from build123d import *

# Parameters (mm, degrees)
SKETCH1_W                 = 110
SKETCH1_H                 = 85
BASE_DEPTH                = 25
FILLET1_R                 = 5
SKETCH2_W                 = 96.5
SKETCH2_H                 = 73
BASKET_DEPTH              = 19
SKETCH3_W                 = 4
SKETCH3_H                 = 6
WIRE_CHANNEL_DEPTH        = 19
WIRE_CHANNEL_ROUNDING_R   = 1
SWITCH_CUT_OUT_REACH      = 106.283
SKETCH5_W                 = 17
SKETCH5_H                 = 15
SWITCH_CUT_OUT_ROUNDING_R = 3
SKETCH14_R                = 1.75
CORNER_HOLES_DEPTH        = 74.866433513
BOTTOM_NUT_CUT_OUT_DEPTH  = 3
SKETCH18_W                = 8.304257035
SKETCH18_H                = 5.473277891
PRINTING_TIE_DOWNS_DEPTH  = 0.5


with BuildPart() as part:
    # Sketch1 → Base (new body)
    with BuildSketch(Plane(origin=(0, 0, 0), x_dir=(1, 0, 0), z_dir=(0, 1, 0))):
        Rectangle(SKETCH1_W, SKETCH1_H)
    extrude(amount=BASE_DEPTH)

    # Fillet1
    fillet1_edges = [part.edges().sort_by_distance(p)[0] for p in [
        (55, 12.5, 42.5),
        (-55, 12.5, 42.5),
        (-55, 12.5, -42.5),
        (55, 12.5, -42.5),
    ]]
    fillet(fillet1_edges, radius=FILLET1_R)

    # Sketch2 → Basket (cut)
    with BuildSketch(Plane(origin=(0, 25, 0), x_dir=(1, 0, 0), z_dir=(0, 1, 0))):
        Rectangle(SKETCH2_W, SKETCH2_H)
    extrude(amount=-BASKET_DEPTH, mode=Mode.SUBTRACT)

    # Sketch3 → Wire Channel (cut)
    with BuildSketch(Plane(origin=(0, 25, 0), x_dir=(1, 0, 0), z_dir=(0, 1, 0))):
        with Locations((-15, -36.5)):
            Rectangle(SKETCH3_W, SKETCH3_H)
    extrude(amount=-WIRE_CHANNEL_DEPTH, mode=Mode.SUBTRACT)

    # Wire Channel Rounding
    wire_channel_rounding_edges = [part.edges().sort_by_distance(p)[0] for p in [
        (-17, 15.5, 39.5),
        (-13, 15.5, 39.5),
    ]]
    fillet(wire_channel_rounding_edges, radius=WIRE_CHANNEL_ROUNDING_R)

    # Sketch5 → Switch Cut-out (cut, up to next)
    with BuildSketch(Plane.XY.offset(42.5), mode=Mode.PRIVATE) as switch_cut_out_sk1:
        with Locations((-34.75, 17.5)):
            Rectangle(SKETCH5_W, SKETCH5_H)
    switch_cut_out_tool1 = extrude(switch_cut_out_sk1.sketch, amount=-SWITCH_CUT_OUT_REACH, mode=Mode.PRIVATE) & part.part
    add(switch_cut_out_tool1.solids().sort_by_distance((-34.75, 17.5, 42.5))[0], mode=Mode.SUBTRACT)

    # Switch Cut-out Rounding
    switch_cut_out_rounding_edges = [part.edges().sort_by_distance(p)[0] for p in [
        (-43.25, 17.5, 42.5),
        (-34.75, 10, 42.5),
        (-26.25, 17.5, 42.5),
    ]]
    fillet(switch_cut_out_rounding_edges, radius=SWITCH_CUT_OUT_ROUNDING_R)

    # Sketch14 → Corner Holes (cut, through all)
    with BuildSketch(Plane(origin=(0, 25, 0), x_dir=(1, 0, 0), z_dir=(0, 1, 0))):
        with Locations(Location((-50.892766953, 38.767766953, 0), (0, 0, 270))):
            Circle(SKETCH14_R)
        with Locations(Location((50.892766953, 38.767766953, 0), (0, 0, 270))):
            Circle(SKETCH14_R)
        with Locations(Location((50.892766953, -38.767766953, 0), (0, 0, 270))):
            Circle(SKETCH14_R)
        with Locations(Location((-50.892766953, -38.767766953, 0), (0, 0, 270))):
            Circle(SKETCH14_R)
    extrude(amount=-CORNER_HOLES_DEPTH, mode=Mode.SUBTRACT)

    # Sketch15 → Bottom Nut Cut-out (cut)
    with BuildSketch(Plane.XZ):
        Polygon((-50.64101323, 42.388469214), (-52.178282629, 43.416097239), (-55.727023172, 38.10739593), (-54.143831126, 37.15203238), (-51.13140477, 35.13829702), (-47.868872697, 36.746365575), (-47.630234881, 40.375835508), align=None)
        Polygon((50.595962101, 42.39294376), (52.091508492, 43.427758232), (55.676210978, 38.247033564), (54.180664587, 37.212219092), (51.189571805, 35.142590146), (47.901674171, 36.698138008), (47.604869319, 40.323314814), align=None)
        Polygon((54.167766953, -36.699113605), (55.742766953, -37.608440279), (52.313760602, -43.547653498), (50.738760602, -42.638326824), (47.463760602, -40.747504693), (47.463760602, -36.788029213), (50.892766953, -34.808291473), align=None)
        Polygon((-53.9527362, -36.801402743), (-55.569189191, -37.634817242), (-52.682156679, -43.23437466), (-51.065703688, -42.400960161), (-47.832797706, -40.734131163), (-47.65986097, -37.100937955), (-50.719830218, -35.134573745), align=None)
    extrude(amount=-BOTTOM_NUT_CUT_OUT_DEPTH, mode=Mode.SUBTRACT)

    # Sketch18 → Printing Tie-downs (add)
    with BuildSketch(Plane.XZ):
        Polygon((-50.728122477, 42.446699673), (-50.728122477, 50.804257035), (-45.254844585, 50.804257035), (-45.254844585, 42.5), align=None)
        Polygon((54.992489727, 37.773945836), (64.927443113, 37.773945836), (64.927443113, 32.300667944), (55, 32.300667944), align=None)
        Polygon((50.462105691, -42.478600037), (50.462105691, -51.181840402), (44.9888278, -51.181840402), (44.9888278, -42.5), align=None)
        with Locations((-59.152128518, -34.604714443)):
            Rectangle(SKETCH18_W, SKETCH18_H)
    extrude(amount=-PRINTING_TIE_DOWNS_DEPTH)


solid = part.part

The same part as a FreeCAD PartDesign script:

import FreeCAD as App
import Part
import Sketcher
Q = App.Units.Quantity


def edges_at(feature, points):
    """Names of the edges that pass closest to the given points."""
    edges = feature.Shape.Edges
    near = lambda p: min(range(len(edges)), key=lambda i: edges[i].distToShape(Part.Vertex(*p))[0])
    return sorted({f"Edge{near(p) + 1}" for p in points})


def add_polygon(sketch, points):
    """Adds a closed chain of lines whose ends are joined by coincident constraints."""
    first, n = sketch.GeometryCount, len(points)
    for a, b in zip(points, points[1:] + points[:1]):
        sketch.addGeometry(Part.LineSegment(App.Vector(*a, 0), App.Vector(*b, 0)), False)
    for i in range(n):
        sketch.addConstraint(Sketcher.Constraint("Coincident", first + i, 2, first + (i + 1) % n, 1))

doc = App.newDocument("Part")
body = doc.addObject("PartDesign::Body", "Body")

sketch1 = body.newObject("Sketcher::SketchObject", "Sketch")
sketch1.AttachmentSupport = (doc.getObject("XZ_Plane"), [""])
sketch1.MapMode = "FlatFace"
add_polygon(sketch1, [(-55, -42), (-55, 42), (55, 42), (55, -42)])
sketch1.addConstraint([
    Sketcher.Constraint("Vertical", 0),
    Sketcher.Constraint("Horizontal", 1),
    Sketcher.Constraint("Vertical", 2),
    Sketcher.Constraint("Horizontal", 3),
    Sketcher.Constraint("Symmetric", 0, 2, 2, 2, -1, 1),
    Sketcher.Constraint("DistanceX", 1, 1, 1, 2, Q("110 mm")),
    Sketcher.Constraint("DistanceY", 0, 1, 0, 2, Q("85 mm")),
])
pad1 = body.newObject("PartDesign::Pad", "Pad")
pad1.Profile = sketch1
pad1.Length = 25
pad1.Reversed = True
doc.recompute()

fillet = body.newObject("PartDesign::Fillet", "Fillet")
fillet.Base = (pad1, edges_at(pad1, [
    (55, 12.5, 42.5),
    (-55, 12.5, 42.5),
    (-55, 12.5, -42.5),
    (55, 12.5, -42.5),
]))
fillet.Radius = 5

sketch2 = body.newObject("Sketcher::SketchObject", "Sketch001")
sketch2.AttachmentSupport = (doc.getObject("XZ_Plane"), [""])
sketch2.MapMode = "FlatFace"
sketch2.AttachmentOffset = App.Placement(App.Vector(0, 0, -25), App.Rotation())
add_polygon(sketch2, [(-48, -36), (-48, 36), (48, 36), (48, -36)])
sketch2.addConstraint([
    Sketcher.Constraint("Vertical", 0),
    Sketcher.Constraint("Horizontal", 1),
    Sketcher.Constraint("Vertical", 2),
    Sketcher.Constraint("Horizontal", 3),
    Sketcher.Constraint("Symmetric", 0, 2, 2, 2, -1, 1),
    Sketcher.Constraint("DistanceY", 0, 1, 0, 2, Q("73 mm")),
    Sketcher.Constraint("DistanceX", 1, 1, 1, 2, Q("96.5 mm")),
])
pocket1 = body.newObject("PartDesign::Pocket", "Pocket")
pocket1.Profile = sketch2
pocket1.Length = 19
pocket1.Reversed = True

sketch3 = body.newObject("Sketcher::SketchObject", "Sketch002")
sketch3.AttachmentSupport = (doc.getObject("XZ_Plane"), [""])
sketch3.MapMode = "FlatFace"
sketch3.AttachmentOffset = App.Placement(App.Vector(0, 0, -25), App.Rotation())
add_polygon(sketch3, [(-17, 33.5), (-17, 39.5), (-13, 39.5), (-13, 33.5)])
sketch3.addConstraint([
    Sketcher.Constraint("Vertical", 0),
    Sketcher.Constraint("Horizontal", 1),
    Sketcher.Constraint("Vertical", 2),
    Sketcher.Constraint("Horizontal", 3),
    Sketcher.Constraint("DistanceX", 1, 1, 1, 2, Q("4 mm")),
    Sketcher.Constraint("DistanceY", 0, 1, 0, 2, Q("6 mm")),
    Sketcher.Constraint("DistanceX", 0, 2, -1, 1, Q("17 mm")),
    Sketcher.Constraint("DistanceY", -1, 1, 0, 2, Q("39.5 mm")),
])
pocket2 = body.newObject("PartDesign::Pocket", "Pocket001")
pocket2.Profile = sketch3
pocket2.Length = 19
pocket2.Reversed = True
doc.recompute()

fillet2 = body.newObject("PartDesign::Fillet", "Fillet001")
fillet2.Base = (pocket2, edges_at(pocket2, [(-17, 15.5, 39.5), (-13, 15.5, 39.5)]))
fillet2.Radius = 1

sketch4 = body.newObject("Sketcher::SketchObject", "Sketch003")
sketch4.AttachmentSupport = (doc.getObject("XY_Plane"), [""])
sketch4.MapMode = "FlatFace"
sketch4.AttachmentOffset = App.Placement(App.Vector(0, 0, 42.5), App.Rotation())
add_polygon(sketch4, [(-43, 25), (-43, 10), (-26, 10), (-26, 25)])
sketch4.addConstraint([
    Sketcher.Constraint("Vertical", 0),
    Sketcher.Constraint("Horizontal", 1),
    Sketcher.Constraint("Vertical", 2),
    Sketcher.Constraint("Horizontal", 3),
    Sketcher.Constraint("DistanceX", 1, 1, 1, 2, Q("17 mm")),
    Sketcher.Constraint("DistanceY", 0, 2, 0, 1, Q("15 mm")),
    Sketcher.Constraint("DistanceY", -1, 1, 0, 2, Q("10 mm")),
    Sketcher.Constraint("DistanceX", 0, 2, -1, 1, Q("43.25 mm")),
])
pocket3 = body.newObject("PartDesign::Pocket", "Pocket002")
pocket3.Profile = sketch4
pocket3.Type = "UpToFirst"
doc.recompute()

fillet3 = body.newObject("PartDesign::Fillet", "Fillet002")
fillet3.Base = (pocket3, edges_at(pocket3, [(-43.25, 17.5, 42.5), (-34.75, 10, 42.5), (-26.25, 17.5, 42.5)]))
fillet3.Radius = 3

sketch5 = body.newObject("Sketcher::SketchObject", "Sketch004")
sketch5.AttachmentSupport = (doc.getObject("XZ_Plane"), [""])
sketch5.MapMode = "FlatFace"
sketch5.AttachmentOffset = App.Placement(App.Vector(0, 0, -25), App.Rotation())
sketch5.addGeometry([
    Part.Circle(App.Vector(-50.9, -38.8, 0), App.Vector(0, 0, 1), 1.8),
    Part.Circle(App.Vector(50.9, -38.8, 0), App.Vector(0, 0, 1), 1.8),
    Part.Circle(App.Vector(50.9, 38.8, 0), App.Vector(0, 0, 1), 1.8),
    Part.Circle(App.Vector(-50.9, 38.8, 0), App.Vector(0, 0, 1), 1.8),
], False)
sketch5.addConstraint([
    Sketcher.Constraint("Equal", 0, 1),
    Sketcher.Constraint("Equal", 1, 2),
    Sketcher.Constraint("Equal", 2, 3),
    Sketcher.Constraint("Symmetric", 0, 3, 2, 3, -1, 1),
    Sketcher.Constraint("Symmetric", 1, 3, 3, 3, -1, 1),
    Sketcher.Constraint("Symmetric", 0, 3, 1, 3, -2),
    Sketcher.Constraint("Diameter", 0, Q("3.5 mm")),
    Sketcher.Constraint("DistanceX", 0, 3, -1, 1, Q("50.892767 mm")),
    Sketcher.Constraint("DistanceY", 0, 3, -1, 1, Q("38.767767 mm")),
])
pocket4 = body.newObject("PartDesign::Pocket", "Pocket003")
pocket4.Profile = sketch5
pocket4.Type = "ThroughAll"
pocket4.Reversed = True

sketch6 = body.newObject("Sketcher::SketchObject", "Sketch005")
sketch6.AttachmentSupport = (doc.getObject("XZ_Plane"), [""])
sketch6.MapMode = "FlatFace"
add_polygon(sketch6, [(-50.6, 42.4), (-52.2, 43.4), (-55.7, 38.1), (-54.1, 37.2), (-51.1, 35.1), (-47.9, 36.7), (-47.6, 40.4)])
add_polygon(sketch6, [(52.1, 43.4), (50.6, 42.4), (47.6, 40.3), (47.9, 36.7), (51.2, 35.1), (54.2, 37.2), (55.7, 38.2)])
add_polygon(sketch6, [(55.7, -37.6), (54.2, -36.7), (50.9, -34.8), (47.5, -36.8), (47.5, -40.7), (50.7, -42.6), (52.3, -43.5)])
add_polygon(sketch6, [(-55.6, -37.6), (-52.7, -43.2), (-47.8, -40.7), (-47.7, -37.1), (-50.7, -35.1)])
sketch6.addConstraint([
    Sketcher.Constraint("Vertical", 17),
    Sketcher.Constraint("Perpendicular", 0, 1),
    Sketcher.Constraint("Perpendicular", 1, 3),
    Sketcher.Constraint("Parallel", 3, 6),
    Sketcher.Constraint("Parallel", 7, 8),
    Sketcher.Constraint("Parallel", 8, 11),
    Sketcher.Constraint("Parallel", 11, 12),
    Sketcher.Constraint("Perpendicular", 12, 13),
    Sketcher.Constraint("Parallel", 14, 15),
    Sketcher.Constraint("Parallel", 15, 18),
    Sketcher.Constraint("Parallel", 18, 19),
    Sketcher.Constraint("Perpendicular", 19, 20),
    Sketcher.Constraint("Perpendicular", 21, 22),
    Sketcher.Constraint("Parallel", 22, 25),
    Sketcher.Constraint("Equal", 0, 2),
    Sketcher.Constraint("Equal", 4, 5),
    Sketcher.Constraint("Equal", 5, 8),
    Sketcher.Constraint("Equal", 8, 9),
    Sketcher.Constraint("Equal", 9, 10),
    Sketcher.Constraint("Equal", 10, 11),
    Sketcher.Constraint("Equal", 7, 12),
    Sketcher.Constraint("Equal", 12, 14),
    Sketcher.Constraint("Equal", 15, 18),
    Sketcher.Constraint("Equal", 14, 19),
    Sketcher.Constraint("Equal", 13, 21),
    Sketcher.Constraint("Equal", 11, 23),
    Sketcher.Constraint("Equal", 23, 24),
    Sketcher.Constraint("Equal", 22, 25),
    Sketcher.Constraint("Angle", 14, Q("150 deg")),
    Sketcher.Constraint("Angle", 16, Q("-150 deg")),
    Sketcher.Constraint("Distance", 13, Q("6.3 mm")),
    Sketcher.Constraint("DistanceX", 17, 2, 19, 2, Q("4.85 mm")),
    Sketcher.Constraint("DistanceX", 15, 2, 14, 2, Q("3.275 mm")),
    Sketcher.Constraint("Distance", 1, Q("6.385599 mm")),
    Sketcher.Constraint("DistanceY", 1, 2, 0, 2, Q("5.308701 mm")),
    Sketcher.Constraint("DistanceY", 3, 2, 1, 2, Q("2.969099 mm")),
    Sketcher.Constraint("DistanceX", 5, 2, 11, 2, Q("101.810899 mm")),
    Sketcher.Constraint("DistanceY", 21, 2, 24, 2, Q("8.099801 mm")),
    Sketcher.Constraint("Distance", 6, Q("3.62153 mm")),
    Sketcher.Constraint("Distance", 22, Q("5.45596 mm")),
    Sketcher.Constraint("DistanceY", 17, 2, 17, 1, Q("3.959475 mm")),
    Sketcher.Constraint("DistanceX", 2, 2, -1, 1, Q("54.143831 mm")),
    Sketcher.Constraint("DistanceY", -1, 1, 6, 2, Q("42.388469 mm")),
    Sketcher.Constraint("DistanceX", -1, 1, 8, 2, Q("47.604869 mm")),
    Sketcher.Constraint("DistanceY", -1, 1, 9, 2, Q("36.698138 mm")),
    Sketcher.Constraint("DistanceX", -1, 1, 10, 2, Q("51.189572 mm")),
    Sketcher.Constraint("DistanceY", -1, 1, 10, 2, Q("35.14259 mm")),
    Sketcher.Constraint("DistanceY", 15, 2, -1, 1, Q("34.808291 mm")),
    Sketcher.Constraint("DistanceX", -1, 1, 16, 2, Q("47.463761 mm")),
    Sketcher.Constraint("DistanceY", 22, 2, -1, 1, Q("40.734131 mm")),
    Sketcher.Constraint("DistanceX", 23, 2, -1, 1, Q("47.659861 mm")),
    Sketcher.Constraint("DistanceX", 2, 2, 0, 2, Q("1.965548 mm")),
])
pocket5 = body.newObject("PartDesign::Pocket", "Pocket004")
pocket5.Profile = sketch6
pocket5.Length = 3

sketch7 = body.newObject("Sketcher::SketchObject", "Sketch006")
sketch7.AttachmentSupport = (doc.getObject("XZ_Plane"), [""])
sketch7.MapMode = "FlatFace"
add_polygon(sketch7, [(-51, 51), (-51, 42), (-45, 42), (-45, 51)])
add_polygon(sketch7, [(65, 38), (55, 38), (55, 32), (65, 32)])
add_polygon(sketch7, [(50, -51), (50, -42), (45, -42), (45, -51)])
add_polygon(sketch7, [(-63, -32), (-63, -37), (-55, -37), (-55, -32)])
sketch7.addConstraint([
    Sketcher.Constraint("Vertical", 0),
    Sketcher.Constraint("Vertical", 2),
    Sketcher.Constraint("Horizontal", 3),
    Sketcher.Constraint("Horizontal", 4),
    Sketcher.Constraint("Horizontal", 6),
    Sketcher.Constraint("Vertical", 7),
    Sketcher.Constraint("Vertical", 8),
    Sketcher.Constraint("Vertical", 10),
    Sketcher.Constraint("Horizontal", 11),
    Sketcher.Constraint("Vertical", 12),
    Sketcher.Constraint("Horizontal", 13),
    Sketcher.Constraint("Vertical", 14),
    Sketcher.Constraint("Horizontal", 15),
    Sketcher.Constraint("Equal", 3, 11),
    Sketcher.Constraint("Equal", 15, 2),
    Sketcher.Constraint("Equal", 11, 7),
    Sketcher.Constraint("Equal", 7, 12),
    Sketcher.Constraint("DistanceX", -1, 1, 5, 2, Q("55 mm")),
    Sketcher.Constraint("DistanceX", 13, 2, -1, 1, Q("55 mm")),
    Sketcher.Constraint("DistanceY", -1, 1, 1, 2, Q("42.5 mm")),
    Sketcher.Constraint("DistanceY", 9, 2, -1, 1, Q("42.5 mm")),
    Sketcher.Constraint("DistanceY", 8, 1, 8, 2, Q("8.70324 mm")),
    Sketcher.Constraint("DistanceY", 10, 2, 10, 1, Q("8.68184 mm")),
    Sketcher.Constraint("DistanceY", -1, 1, 0, 2, Q("42.4467 mm")),
    Sketcher.Constraint("Distance", 9, Q("5.47332 mm")),
    Sketcher.Constraint("DistanceX", 4, 2, 4, 1, Q("9.934953 mm")),
    Sketcher.Constraint("DistanceX", 6, 1, 6, 2, Q("9.927443 mm")),
    Sketcher.Constraint("DistanceX", 13, 1, 13, 2, Q("8.304257 mm")),
    Sketcher.Constraint("DistanceY", 4, 2, 2, 2, Q("13.030311 mm")),
    Sketcher.Constraint("DistanceX", 1, 2, 8, 2, Q("95.71695 mm")),
    Sketcher.Constraint("DistanceX", 9, 2, 4, 2, Q("10.003662 mm")),
    Sketcher.Constraint("DistanceY", 12, 2, 3, 2, Q("88.14561 mm")),
])
pad2 = body.newObject("PartDesign::Pad", "Pad001")
pad2.Profile = sketch7
pad2.Length = 0.5
pad2.Reversed = True

doc.recompute()
